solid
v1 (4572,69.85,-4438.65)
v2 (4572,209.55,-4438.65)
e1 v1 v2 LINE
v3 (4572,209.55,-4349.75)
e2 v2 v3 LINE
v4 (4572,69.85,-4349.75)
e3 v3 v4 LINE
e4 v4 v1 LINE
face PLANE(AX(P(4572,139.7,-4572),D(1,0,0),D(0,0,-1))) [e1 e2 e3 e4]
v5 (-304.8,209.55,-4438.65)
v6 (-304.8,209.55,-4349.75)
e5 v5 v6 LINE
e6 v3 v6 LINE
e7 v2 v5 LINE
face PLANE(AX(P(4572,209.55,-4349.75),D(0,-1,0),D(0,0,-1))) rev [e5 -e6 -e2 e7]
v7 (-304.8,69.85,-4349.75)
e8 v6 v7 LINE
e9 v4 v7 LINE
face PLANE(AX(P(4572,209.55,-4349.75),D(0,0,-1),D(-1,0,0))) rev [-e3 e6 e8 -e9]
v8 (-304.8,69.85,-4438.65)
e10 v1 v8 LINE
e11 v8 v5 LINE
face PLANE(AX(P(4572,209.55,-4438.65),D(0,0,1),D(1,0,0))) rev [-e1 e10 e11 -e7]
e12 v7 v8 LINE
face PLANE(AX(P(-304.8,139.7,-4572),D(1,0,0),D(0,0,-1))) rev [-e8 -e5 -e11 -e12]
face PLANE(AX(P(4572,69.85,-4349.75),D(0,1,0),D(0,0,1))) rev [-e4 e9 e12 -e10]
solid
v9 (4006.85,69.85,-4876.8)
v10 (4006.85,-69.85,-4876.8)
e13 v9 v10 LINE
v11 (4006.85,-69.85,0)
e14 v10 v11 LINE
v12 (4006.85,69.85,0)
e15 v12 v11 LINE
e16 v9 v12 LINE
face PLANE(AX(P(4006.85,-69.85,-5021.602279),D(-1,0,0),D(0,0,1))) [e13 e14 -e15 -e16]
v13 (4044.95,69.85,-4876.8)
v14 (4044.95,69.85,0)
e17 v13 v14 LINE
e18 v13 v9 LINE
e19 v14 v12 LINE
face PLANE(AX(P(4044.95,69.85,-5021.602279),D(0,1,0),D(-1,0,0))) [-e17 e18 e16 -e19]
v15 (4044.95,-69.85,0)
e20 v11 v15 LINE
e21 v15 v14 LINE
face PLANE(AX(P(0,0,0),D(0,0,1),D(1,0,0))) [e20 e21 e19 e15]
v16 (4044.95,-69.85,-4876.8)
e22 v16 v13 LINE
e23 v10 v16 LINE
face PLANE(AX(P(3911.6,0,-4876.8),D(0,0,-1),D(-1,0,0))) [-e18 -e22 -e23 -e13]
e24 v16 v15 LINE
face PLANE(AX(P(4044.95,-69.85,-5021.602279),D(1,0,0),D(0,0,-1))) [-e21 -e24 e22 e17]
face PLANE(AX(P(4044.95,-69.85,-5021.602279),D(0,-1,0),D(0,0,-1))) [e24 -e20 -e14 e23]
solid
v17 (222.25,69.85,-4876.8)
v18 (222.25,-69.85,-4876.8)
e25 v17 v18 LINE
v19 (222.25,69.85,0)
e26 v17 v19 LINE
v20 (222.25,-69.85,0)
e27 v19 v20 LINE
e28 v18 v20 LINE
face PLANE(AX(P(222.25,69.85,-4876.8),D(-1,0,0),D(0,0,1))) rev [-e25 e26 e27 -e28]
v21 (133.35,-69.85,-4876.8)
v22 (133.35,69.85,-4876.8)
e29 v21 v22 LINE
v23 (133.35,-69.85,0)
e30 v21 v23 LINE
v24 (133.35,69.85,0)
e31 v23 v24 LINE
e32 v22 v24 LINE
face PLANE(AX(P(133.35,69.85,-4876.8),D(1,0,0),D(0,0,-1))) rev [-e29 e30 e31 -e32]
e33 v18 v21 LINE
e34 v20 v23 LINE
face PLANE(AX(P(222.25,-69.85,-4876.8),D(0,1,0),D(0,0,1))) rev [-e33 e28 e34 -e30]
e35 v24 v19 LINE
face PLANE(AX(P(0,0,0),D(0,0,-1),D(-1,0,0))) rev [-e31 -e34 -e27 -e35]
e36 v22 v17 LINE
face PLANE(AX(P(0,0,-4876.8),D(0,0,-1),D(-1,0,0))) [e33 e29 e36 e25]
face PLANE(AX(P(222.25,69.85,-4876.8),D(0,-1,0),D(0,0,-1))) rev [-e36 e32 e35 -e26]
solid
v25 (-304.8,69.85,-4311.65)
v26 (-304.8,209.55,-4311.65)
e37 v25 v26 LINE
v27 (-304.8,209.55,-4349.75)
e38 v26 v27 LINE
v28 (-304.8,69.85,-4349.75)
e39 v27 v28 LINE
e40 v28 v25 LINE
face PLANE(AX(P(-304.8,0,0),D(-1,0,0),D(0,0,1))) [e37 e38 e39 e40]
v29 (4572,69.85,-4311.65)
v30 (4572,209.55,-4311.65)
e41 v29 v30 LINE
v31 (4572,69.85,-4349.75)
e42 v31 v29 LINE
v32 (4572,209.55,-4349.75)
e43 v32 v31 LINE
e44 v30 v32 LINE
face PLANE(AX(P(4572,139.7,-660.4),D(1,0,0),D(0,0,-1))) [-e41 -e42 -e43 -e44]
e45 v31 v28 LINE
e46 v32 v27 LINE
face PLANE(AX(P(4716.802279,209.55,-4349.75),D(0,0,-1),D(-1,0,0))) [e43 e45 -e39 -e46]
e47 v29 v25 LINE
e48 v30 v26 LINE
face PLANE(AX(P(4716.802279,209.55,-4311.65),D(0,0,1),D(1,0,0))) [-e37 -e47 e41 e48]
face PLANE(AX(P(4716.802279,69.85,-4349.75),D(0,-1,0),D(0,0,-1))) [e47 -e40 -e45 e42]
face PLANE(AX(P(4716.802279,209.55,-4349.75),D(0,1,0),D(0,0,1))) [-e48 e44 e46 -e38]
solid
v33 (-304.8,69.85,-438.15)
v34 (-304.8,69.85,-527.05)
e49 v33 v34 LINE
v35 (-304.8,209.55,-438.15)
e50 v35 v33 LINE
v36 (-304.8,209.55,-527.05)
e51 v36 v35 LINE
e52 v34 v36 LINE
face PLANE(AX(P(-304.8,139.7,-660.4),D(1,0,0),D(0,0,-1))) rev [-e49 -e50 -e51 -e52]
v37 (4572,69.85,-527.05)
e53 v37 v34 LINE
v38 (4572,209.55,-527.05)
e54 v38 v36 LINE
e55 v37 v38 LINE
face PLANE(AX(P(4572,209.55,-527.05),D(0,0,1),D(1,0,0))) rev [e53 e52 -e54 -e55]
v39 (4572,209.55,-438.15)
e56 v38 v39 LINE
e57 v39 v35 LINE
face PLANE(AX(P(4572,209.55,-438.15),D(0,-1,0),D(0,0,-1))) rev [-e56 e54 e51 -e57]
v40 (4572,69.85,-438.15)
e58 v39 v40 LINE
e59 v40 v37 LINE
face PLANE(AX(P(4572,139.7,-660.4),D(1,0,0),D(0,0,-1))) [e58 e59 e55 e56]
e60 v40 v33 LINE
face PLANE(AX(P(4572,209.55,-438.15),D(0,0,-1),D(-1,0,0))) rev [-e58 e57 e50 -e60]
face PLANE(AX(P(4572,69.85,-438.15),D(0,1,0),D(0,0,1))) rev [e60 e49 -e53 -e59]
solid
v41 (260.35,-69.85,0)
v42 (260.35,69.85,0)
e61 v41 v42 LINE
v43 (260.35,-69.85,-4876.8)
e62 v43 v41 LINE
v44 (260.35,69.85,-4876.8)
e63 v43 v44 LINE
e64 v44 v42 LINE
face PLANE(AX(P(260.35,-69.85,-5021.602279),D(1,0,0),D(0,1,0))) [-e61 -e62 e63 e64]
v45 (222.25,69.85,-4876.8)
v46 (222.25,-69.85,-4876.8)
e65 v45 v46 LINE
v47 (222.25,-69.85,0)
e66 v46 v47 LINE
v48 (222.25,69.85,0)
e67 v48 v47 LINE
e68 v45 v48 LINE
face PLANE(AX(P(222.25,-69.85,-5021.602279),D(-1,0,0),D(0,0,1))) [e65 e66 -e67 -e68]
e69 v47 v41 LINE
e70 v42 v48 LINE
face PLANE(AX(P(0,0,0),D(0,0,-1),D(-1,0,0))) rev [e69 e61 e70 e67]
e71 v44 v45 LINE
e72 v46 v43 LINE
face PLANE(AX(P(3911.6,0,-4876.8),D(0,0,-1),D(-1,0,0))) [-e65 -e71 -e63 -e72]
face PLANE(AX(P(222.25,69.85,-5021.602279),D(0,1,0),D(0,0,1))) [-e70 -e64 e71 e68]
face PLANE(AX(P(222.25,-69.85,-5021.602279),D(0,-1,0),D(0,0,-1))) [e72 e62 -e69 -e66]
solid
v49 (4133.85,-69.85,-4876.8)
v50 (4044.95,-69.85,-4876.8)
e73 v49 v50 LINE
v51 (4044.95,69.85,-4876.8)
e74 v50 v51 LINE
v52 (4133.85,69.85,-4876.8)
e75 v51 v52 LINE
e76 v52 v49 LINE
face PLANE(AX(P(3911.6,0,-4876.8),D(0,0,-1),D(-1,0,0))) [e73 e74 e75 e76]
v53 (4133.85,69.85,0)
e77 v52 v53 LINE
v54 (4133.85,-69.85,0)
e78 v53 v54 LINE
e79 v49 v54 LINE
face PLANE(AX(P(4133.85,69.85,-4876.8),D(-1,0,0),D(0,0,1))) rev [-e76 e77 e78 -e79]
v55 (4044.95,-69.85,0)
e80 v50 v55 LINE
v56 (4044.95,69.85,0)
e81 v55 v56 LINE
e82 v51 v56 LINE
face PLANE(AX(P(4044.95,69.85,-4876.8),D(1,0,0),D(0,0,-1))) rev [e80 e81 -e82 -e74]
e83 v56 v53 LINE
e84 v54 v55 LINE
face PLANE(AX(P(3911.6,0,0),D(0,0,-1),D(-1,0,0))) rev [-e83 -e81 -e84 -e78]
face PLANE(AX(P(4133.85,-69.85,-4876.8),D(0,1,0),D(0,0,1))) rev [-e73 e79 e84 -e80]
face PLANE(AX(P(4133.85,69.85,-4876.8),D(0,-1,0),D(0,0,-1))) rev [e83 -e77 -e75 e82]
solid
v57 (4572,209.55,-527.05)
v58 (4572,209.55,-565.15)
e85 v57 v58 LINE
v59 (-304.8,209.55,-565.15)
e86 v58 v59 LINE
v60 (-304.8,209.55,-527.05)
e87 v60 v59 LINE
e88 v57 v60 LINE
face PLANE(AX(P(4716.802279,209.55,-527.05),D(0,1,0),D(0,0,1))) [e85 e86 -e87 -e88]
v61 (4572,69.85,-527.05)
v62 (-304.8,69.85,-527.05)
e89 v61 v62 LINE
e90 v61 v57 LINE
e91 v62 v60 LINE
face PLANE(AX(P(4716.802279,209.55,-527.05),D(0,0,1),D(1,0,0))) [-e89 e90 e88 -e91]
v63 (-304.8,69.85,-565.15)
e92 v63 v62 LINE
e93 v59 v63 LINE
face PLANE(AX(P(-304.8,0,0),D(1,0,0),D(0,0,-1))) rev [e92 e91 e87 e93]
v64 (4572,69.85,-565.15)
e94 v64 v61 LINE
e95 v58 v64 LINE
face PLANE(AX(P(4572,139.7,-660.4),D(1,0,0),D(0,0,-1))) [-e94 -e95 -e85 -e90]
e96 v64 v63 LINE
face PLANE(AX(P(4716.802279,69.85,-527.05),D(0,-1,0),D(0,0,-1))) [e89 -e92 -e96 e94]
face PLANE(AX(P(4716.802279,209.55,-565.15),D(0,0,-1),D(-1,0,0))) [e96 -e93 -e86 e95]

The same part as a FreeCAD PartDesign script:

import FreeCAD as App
import Part
import Sketcher
from FreeCAD import Vector
Q = App.Units.Quantity

doc = App.newDocument("Part")
body = doc.addObject("PartDesign::Body", "Body")

# Sketch on XY plane
sketch1 = doc.addObject("Sketcher::SketchObject", "Sketch")
body.addObject(sketch1)
sketch1.AttachmentSupport = (doc.XY_Plane, [""])
sketch1.MapMode = "FlatFace"
sketch1.addGeometry([
    Part.LineSegment(Vector(222, 70, 0), Vector(222, -70, 0)),
    Part.LineSegment(Vector(222, -70, 0), Vector(133, -70, 0)),
    Part.LineSegment(Vector(133, -70, 0), Vector(133, 70, 0)),
    Part.LineSegment(Vector(133, 70, 0), Vector(222, 70, 0)),
], False)
sketch1.addConstraint([
    Sketcher.Constraint("Coincident", 0, 2, 1, 1),
    Sketcher.Constraint("Coincident", 1, 2, 2, 1),
    Sketcher.Constraint("Coincident", 2, 2, 3, 1),
    Sketcher.Constraint("Coincident", 3, 2, 0, 1),
    Sketcher.Constraint("Vertical", 0),
    Sketcher.Constraint("Horizontal", 1),
    Sketcher.Constraint("Vertical", 2),
    Sketcher.Constraint("Horizontal", 3),
    Sketcher.Constraint("DistanceX", 1, 2, 1, 1, Q("3.5 in")),
    Sketcher.Constraint("DistanceY", 0, 2, 0, 1, Q("5.5 in")),
    Sketcher.Constraint("DistanceX", -1, 1, 0, 2, Q("8.75 in")),
    Sketcher.Constraint("DistanceY", 0, 2, -1, 1, Q("2.75 in")),
])
pad1 = doc.addObject("PartDesign::Pad", "Pad")
body.addObject(pad1)
pad1.Profile = sketch1
pad1.Length = Q("192 in")
pad1.Reversed = True
body2 = doc.addObject("PartDesign::Body", "Body001")

# Sketch on XY plane
sketch2 = doc.addObject("Sketcher::SketchObject", "Sketch001")
body2.addObject(sketch2)
sketch2.AttachmentSupport = (doc.getObject("XY_Plane001"), [""])
sketch2.MapMode = "FlatFace"
sketch2.addGeometry([
    Part.LineSegment(Vector(4134, 70, 0), Vector(4134, -70, 0)),
    Part.LineSegment(Vector(4134, -70, 0), Vector(4045, -70, 0)),
    Part.LineSegment(Vector(4045, -70, 0), Vector(4045, 70, 0)),
    Part.LineSegment(Vector(4045, 70, 0), Vector(4134, 70, 0)),
], False)
sketch2.addConstraint([
    Sketcher.Constraint("Coincident", 0, 2, 1, 1),
    Sketcher.Constraint("Coincident", 1, 2, 2, 1),
    Sketcher.Constraint("Coincident", 2, 2, 3, 1),
    Sketcher.Constraint("Coincident", 3, 2, 0, 1),
    Sketcher.Constraint("Vertical", 0),
    Sketcher.Constraint("Horizontal", 1),
    Sketcher.Constraint("Vertical", 2),
    Sketcher.Constraint("Horizontal", 3),
    Sketcher.Constraint("DistanceX", 1, 2, 1, 1, Q("3.5 in")),
    Sketcher.Constraint("DistanceY", 0, 2, 0, 1, Q("5.5 in")),
    Sketcher.Constraint("DistanceX", -1, 1, 0, 2, Q("162.75 in")),
    Sketcher.Constraint("DistanceY", 0, 2, -1, 1, Q("2.75 in")),
])
pad2 = doc.addObject("PartDesign::Pad", "Pad001")
body2.addObject(pad2)
pad2.Profile = sketch2
pad2.Length = Q("192 in")
pad2.Reversed = True
body3 = doc.addObject("PartDesign::Body", "Body002")

# Sketch on YZ plane
sketch3 = doc.addObject("Sketcher::SketchObject", "Sketch002")
body3.addObject(sketch3)
sketch3.AttachmentSupport = (doc.getObject("YZ_Plane002"), [""])
sketch3.MapMode = "FlatFace"
sketch3.AttachmentOffset = App.Placement(Vector(0, 0, -12 * 25.4), App.Rotation())
sketch3.addGeometry([
    Part.LineSegment(Vector(210, -4350, 0), Vector(70, -4350, 0)),
    Part.LineSegment(Vector(70, -4350, 0), Vector(70, -4439, 0)),
    Part.LineSegment(Vector(70, -4439, 0), Vector(210, -4439, 0)),
    Part.LineSegment(Vector(210, -4439, 0), Vector(210, -4350, 0)),
], False)
sketch3.addConstraint([
    Sketcher.Constraint("Coincident", 0, 2, 1, 1),
    Sketcher.Constraint("Coincident", 1, 2, 2, 1),
    Sketcher.Constraint("Coincident", 2, 2, 3, 1),
    Sketcher.Constraint("Coincident", 3, 2, 0, 1),
    Sketcher.Constraint("Horizontal", 0),
    Sketcher.Constraint("Vertical", 1),
    Sketcher.Constraint("Horizontal", 2),
    Sketcher.Constraint("Vertical", 3),
    Sketcher.Constraint("DistanceX", 0, 2, 0, 1, Q("5.5 in")),
    Sketcher.Constraint("DistanceY", 1, 2, 1, 1, Q("3.5 in")),
    Sketcher.Constraint("DistanceX", -1, 1, 0, 2, Q("2.75 in")),
    Sketcher.Constraint("DistanceY", 0, 2, -1, 1, Q("171.25 in")),
])
pad3 = doc.addObject("PartDesign::Pad", "Pad002")
body3.addObject(pad3)
pad3.Profile = sketch3
pad3.Length = Q("192 in")
body4 = doc.addObject("PartDesign::Body", "Body003")

# Sketch on YZ plane
sketch4 = doc.addObject("Sketcher::SketchObject", "Sketch003")
body4.addObject(sketch4)
sketch4.AttachmentSupport = (doc.getObject("YZ_Plane003"), [""])
sketch4.MapMode = "FlatFace"
sketch4.AttachmentOffset = App.Placement(Vector(0, 0, 180 * 25.4), App.Rotation())
sketch4.addGeometry([
    Part.LineSegment(Vector(210, -527, 0), Vector(70, -527, 0)),
    Part.LineSegment(Vector(70, -527, 0), Vector(70, -438, 0)),
    Part.LineSegment(Vector(70, -438, 0), Vector(210, -438, 0)),
    Part.LineSegment(Vector(210, -438, 0), Vector(210, -527, 0)),
], False)
sketch4.addConstraint([
    Sketcher.Constraint("Coincident", 0, 2, 1, 1),
    Sketcher.Constraint("Coincident", 1, 2, 2, 1),
    Sketcher.Constraint("Coincident", 2, 2, 3, 1),
    Sketcher.Constraint("Coincident", 3, 2, 0, 1),
    Sketcher.Constraint("Horizontal", 0),
    Sketcher.Constraint("Vertical", 1),
    Sketcher.Constraint("Horizontal", 2),
    Sketcher.Constraint("Vertical", 3),
    Sketcher.Constraint("DistanceX", 0, 2, 0, 1, Q("5.5 in")),
    Sketcher.Constraint("DistanceY", 1, 1, 1, 2, Q("3.5 in")),
    Sketcher.Constraint("DistanceX", -1, 1, 0, 2, Q("2.75 in")),
    Sketcher.Constraint("DistanceY", 0, 2, -1, 1, Q("20.75 in")),
])
pad4 = doc.addObject("PartDesign::Pad", "Pad003")
body4.addObject(pad4)
pad4.Profile = sketch4
pad4.Length = Q("192 in")
pad4.Reversed = True
body5 = doc.addObject("PartDesign::Body", "Body004")

# Sketch on YZ plane
sketch5 = doc.addObject("Sketcher::SketchObject", "Sketch004")
body5.addObject(sketch5)
sketch5.AttachmentSupport = (doc.getObject("YZ_Plane004"), [""])
sketch5.MapMode = "FlatFace"
sketch5.AttachmentOffset = App.Placement(Vector(0, 0, -12 * 25.4), App.Rotation())
sketch5.addGeometry([
    Part.LineSegment(Vector(210, -4350, 0), Vector(70, -4350, 0)),
    Part.LineSegment(Vector(70, -4350, 0), Vector(70, -4312, 0)),
    Part.LineSegment(Vector(70, -4312, 0), Vector(210, -4312, 0)),
    Part.LineSegment(Vector(210, -4312, 0), Vector(210, -4350, 0)),
], False)
sketch5.addConstraint([
    Sketcher.Constraint("Coincident", 0, 2, 1, 1),
    Sketcher.Constraint("Coincident", 1, 2, 2, 1),
    Sketcher.Constraint("Coincident", 2, 2, 3, 1),
    Sketcher.Constraint("Coincident", 3, 2, 0, 1),
    Sketcher.Constraint("Horizontal", 0),
    Sketcher.Constraint("Vertical", 1),
    Sketcher.Constraint("Horizontal", 2),
    Sketcher.Constraint("Vertical", 3),
    Sketcher.Constraint("DistanceX", 0, 2, 0, 1, Q("5.5 in")),
    Sketcher.Constraint("DistanceY", 1, 1, 1, 2, Q("1.5 in")),
    Sketcher.Constraint("DistanceX", -1, 1, 0, 2, Q("2.75 in")),
    Sketcher.Constraint("DistanceY", 0, 2, -1, 1, Q("171.25 in")),
])
pad5 = doc.addObject("PartDesign::Pad", "Pad004")
body5.addObject(pad5)
pad5.Profile = sketch5
pad5.Length = Q("192 in")
body6 = doc.addObject("PartDesign::Body", "Body005")

# Sketch on YZ plane
sketch6 = doc.addObject("Sketcher::SketchObject", "Sketch005")
body6.addObject(sketch6)
sketch6.AttachmentSupport = (doc.getObject("YZ_Plane005"), [""])
sketch6.MapMode = "FlatFace"
sketch6.AttachmentOffset = App.Placement(Vector(0, 0, -12 * 25.4), App.Rotation())
sketch6.addGeometry([
    Part.LineSegment(Vector(210, -565, 0), Vector(70, -565, 0)),
    Part.LineSegment(Vector(70, -565, 0), Vector(70, -527, 0)),
    Part.LineSegment(Vector(70, -527, 0), Vector(210, -527, 0)),
    Part.LineSegment(Vector(210, -527, 0), Vector(210, -565, 0)),
], False)
sketch6.addConstraint([
    Sketcher.Constraint("Coincident", 0, 2, 1, 1),
    Sketcher.Constraint("Coincident", 1, 2, 2, 1),
    Sketcher.Constraint("Coincident", 2, 2, 3, 1),
    Sketcher.Constraint("Coincident", 3, 2, 0, 1),
    Sketcher.Constraint("Horizontal", 0),
    Sketcher.Constraint("Vertical", 1),
    Sketcher.Constraint("Horizontal", 2),
    Sketcher.Constraint("Vertical", 3),
    Sketcher.Constraint("DistanceX", 0, 2, 0, 1, Q("5.5 in")),
    Sketcher.Constraint("DistanceY", 1, 1, 1, 2, Q("1.5 in")),
    Sketcher.Constraint("DistanceX", -1, 1, 0, 2, Q("2.75 in")),
    Sketcher.Constraint("DistanceY", 0, 2, -1, 1, Q("22.25 in")),
])
pad6 = doc.addObject("PartDesign::Pad", "Pad005")
body6.addObject(pad6)
pad6.Profile = sketch6
pad6.Length = Q("192 in")
body7 = doc.addObject("PartDesign::Body", "Body006")

# Sketch on XY plane
sketch7 = doc.addObject("Sketcher::SketchObject", "Sketch006")
body7.addObject(sketch7)
sketch7.AttachmentSupport = (doc.getObject("XY_Plane006"), [""])
sketch7.MapMode = "FlatFace"
sketch7.addGeometry([
    Part.LineSegment(Vector(222, 70, 0), Vector(222, -70, 0)),
    Part.LineSegment(Vector(222, -70, 0), Vector(260, -70, 0)),
    Part.LineSegment(Vector(260, -70, 0), Vector(260, 70, 0)),
    Part.LineSegment(Vector(260, 70, 0), Vector(222, 70, 0)),
], False)
sketch7.addConstraint([
    Sketcher.Constraint("Coincident", 0, 2, 1, 1),
    Sketcher.Constraint("Coincident", 1, 2, 2, 1),
    Sketcher.Constraint("Coincident", 2, 2, 3, 1),
    Sketcher.Constraint("Coincident", 3, 2, 0, 1),
    Sketcher.Constraint("Vertical", 0),
    Sketcher.Constraint("Horizontal", 1),
    Sketcher.Constraint("Vertical", 2),
    Sketcher.Constraint("Horizontal", 3),
    Sketcher.Constraint("DistanceX", 1, 1, 1, 2, Q("1.5 in")),
    Sketcher.Constraint("DistanceY", 0, 2, 0, 1, Q("5.5 in")),
    Sketcher.Constraint("DistanceX", -1, 1, 0, 2, Q("8.75 in")),
    Sketcher.Constraint("DistanceY", 0, 2, -1, 1, Q("2.75 in")),
])
pad7 = doc.addObject("PartDesign::Pad", "Pad006")
body7.addObject(pad7)
pad7.Profile = sketch7
pad7.Length = Q("192 in")
pad7.Reversed = True
body8 = doc.addObject("PartDesign::Body", "Body007")

# Sketch on XY plane
sketch8 = doc.addObject("Sketcher::SketchObject", "Sketch007")
body8.addObject(sketch8)
sketch8.AttachmentSupport = (doc.getObject("XY_Plane007"), [""])
sketch8.MapMode = "FlatFace"
sketch8.addGeometry([
    Part.LineSegment(Vector(4007, 70, 0), Vector(4007, -70, 0)),
    Part.LineSegment(Vector(4007, -70, 0), Vector(4045, -70, 0)),
    Part.LineSegment(Vector(4045, -70, 0), Vector(4045, 70, 0)),
    Part.LineSegment(Vector(4045, 70, 0), Vector(4007, 70, 0)),
], False)
sketch8.addConstraint([
    Sketcher.Constraint("Coincident", 0, 2, 1, 1),
    Sketcher.Constraint("Coincident", 1, 2, 2, 1),
    Sketcher.Constraint("Coincident", 2, 2, 3, 1),
    Sketcher.Constraint("Coincident", 3, 2, 0, 1),
    Sketcher.Constraint("Vertical", 0),
    Sketcher.Constraint("Horizontal", 1),
    Sketcher.Constraint("Vertical", 2),
    Sketcher.Constraint("Horizontal", 3),
    Sketcher.Constraint("DistanceX", 1, 1, 1, 2, Q("1.5 in")),
    Sketcher.Constraint("DistanceY", 0, 2, 0, 1, Q("5.5 in")),
    Sketcher.Constraint("DistanceX", -1, 1, 0, 2, Q("157.75 in")),
    Sketcher.Constraint("DistanceY", 0, 2, -1, 1, Q("2.75 in")),
])
pad8 = doc.addObject("PartDesign::Pad", "Pad007")
body8.addObject(pad8)
pad8.Profile = sketch8
pad8.Length = Q("192 in")
pad8.Reversed = True

doc.recompute()
